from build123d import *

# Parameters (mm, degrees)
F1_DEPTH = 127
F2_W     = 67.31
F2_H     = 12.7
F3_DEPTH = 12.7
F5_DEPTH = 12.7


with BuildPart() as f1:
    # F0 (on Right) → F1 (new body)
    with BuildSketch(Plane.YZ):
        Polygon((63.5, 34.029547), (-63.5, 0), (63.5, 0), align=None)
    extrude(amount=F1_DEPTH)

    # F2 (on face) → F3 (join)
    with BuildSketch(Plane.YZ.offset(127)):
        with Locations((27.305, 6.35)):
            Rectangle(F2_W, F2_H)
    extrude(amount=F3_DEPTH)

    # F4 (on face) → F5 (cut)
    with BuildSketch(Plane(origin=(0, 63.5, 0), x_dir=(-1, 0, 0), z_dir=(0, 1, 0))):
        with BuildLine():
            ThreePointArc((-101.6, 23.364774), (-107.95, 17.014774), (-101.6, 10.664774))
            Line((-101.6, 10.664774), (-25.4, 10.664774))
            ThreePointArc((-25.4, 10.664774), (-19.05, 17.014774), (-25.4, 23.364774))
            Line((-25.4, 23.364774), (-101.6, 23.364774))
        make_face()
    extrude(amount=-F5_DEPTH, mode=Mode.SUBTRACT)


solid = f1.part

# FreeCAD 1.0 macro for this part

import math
import FreeCAD as App
import Part
import Sketcher
from FreeCAD import Vector
Q = App.Units.Quantity

doc = App.newDocument("Part")
params = doc.addObject("Spreadsheet::Sheet", "Params")
for row, (alias, value) in enumerate([
    ("sketch1_width", "5 in"),
    ("pad1_length", "5 in"),
    ("sketch2_height", "0.5 in"),
    ("sketch2_width", "2.65 in"),
    ("pad2_length", "0.5 in"),
    ("sketch3_width", "3 in"),
    ("sketch3_radius", "0.25 in"),
    ("pocket1_length", "0.5 in"),
], start=1):
    params.set(f"A{row}", alias)
    params.set(f"B{row}", "=" + value)
    params.setAlias(f"B{row}", alias)

body = doc.addObject("PartDesign::Body", "Body")

sketch1 = doc.addObject("Sketcher::SketchObject", "Sketch")
body.addObject(sketch1)
sketch1.AttachmentSupport = (doc.YZ_Plane, [""])
sketch1.MapMode = "FlatFace"
sketch1.addGeometry(Part.LineSegment(Vector(64, 34, 0), Vector(-64, 0, 0)), False)
sketch1.addGeometry(Part.LineSegment(Vector(-64, 0, 0), Vector(64, 0, 0)), False)
sketch1.addGeometry(Part.LineSegment(Vector(64, 0, 0), Vector(64, 34, 0)), False)
sketch1.addConstraint(Sketcher.Constraint("Coincident", 0, 2, 1, 1))
sketch1.addConstraint(Sketcher.Constraint("Coincident", 1, 2, 2, 1))
sketch1.addConstraint(Sketcher.Constraint("Coincident", 2, 2, 0, 1))
sketch1.addConstraint(Sketcher.Constraint("Horizontal", 1))
sketch1.addConstraint(Sketcher.Constraint("Vertical", 2))
sketch1.addConstraint(Sketcher.Constraint("Symmetric", 0, 2, 1, 2, -1, 1))
sketch1.addConstraint(Sketcher.Constraint("DistanceX", 1, 1, 1, 2, Q("5 in")))
sketch1.addConstraint(Sketcher.Constraint("Angle", 0, Q("-165 deg")))
sketch1.setExpression("Constraints[6]", "Params.sketch1_width")
pad1 = doc.addObject("PartDesign::Pad", "Pad")
body.addObject(pad1)
pad1.Profile = sketch1
pad1.setExpression("Length", "Params.pad1_length")

sketch2 = doc.addObject("Sketcher::SketchObject", "Sketch001")
body.addObject(sketch2)
sketch2.AttachmentSupport = (doc.YZ_Plane, [""])
sketch2.MapMode = "FlatFace"
sketch2.AttachmentOffset = App.Placement(Vector(0, 0, 5 * 25.4), App.Rotation())
sketch2.addGeometry(Part.LineSegment(Vector(-6, 13, 0), Vector(-6, 0, 0)), False)
sketch2.addGeometry(Part.LineSegment(Vector(-6, 0, 0), Vector(61, 0, 0)), False)
sketch2.addGeometry(Part.LineSegment(Vector(61, 0, 0), Vector(61, 13, 0)), False)
sketch2.addGeometry(Part.LineSegment(Vector(61, 13, 0), Vector(-6, 13, 0)), False)
sketch2.addConstraint(Sketcher.Constraint("Coincident", 0, 2, 1, 1))
sketch2.addConstraint(Sketcher.Constraint("Coincident", 1, 2, 2, 1))
sketch2.addConstraint(Sketcher.Constraint("Coincident", 2, 2, 3, 1))
sketch2.addConstraint(Sketcher.Constraint("Coincident", 3, 2, 0, 1))
sketch2.addConstraint(Sketcher.Constraint("Vertical", 0))
sketch2.addConstraint(Sketcher.Constraint("Horizontal", 1))
sketch2.addConstraint(Sketcher.Constraint("Vertical", 2))
sketch2.addConstraint(Sketcher.Constraint("Horizontal", 3))
sketch2.addConstraint(Sketcher.Constraint("PointOnObject", 0, 2, -1))
sketch2.addConstraint(Sketcher.Constraint("DistanceY", 0, 2, 0, 1, Q("0.5 in")))
sketch2.addConstraint(Sketcher.Constraint("DistanceX", 1, 1, 1, 2, Q("2.65 in")))
sketch2.addConstraint(Sketcher.Constraint("DistanceX", -1, 1, 1, 2, Q("2.4 in")))
sketch2.setExpression("Constraints[9]", "Params.sketch2_height")
sketch2.setExpression("Constraints[10]", "Params.sketch2_width")
pad2 = doc.addObject("PartDesign::Pad", "Pad001")
body.addObject(pad2)
pad2.Profile = sketch2
pad2.setExpression("Length", "Params.pad2_length")

sketch3 = doc.addObject("Sketcher::SketchObject", "Sketch002")
body.addObject(sketch3)
sketch3.AttachmentSupport = (doc.XZ_Plane, [""])
sketch3.MapMode = "FlatFace"
sketch3.AttachmentOffset = App.Placement(Vector(0, 0, -2.5 * 25.4), App.Rotation())
sketch3.addGeometry(Part.ArcOfCircle(Part.Circle(Vector(102, 17, 0), Vector(0, 0, 1), 6), math.radians(-90), math.radians(90)), False)
sketch3.addGeometry(Part.LineSegment(Vector(102, 11, 0), Vector(25, 11, 0)), False)
sketch3.addGeometry(Part.ArcOfCircle(Part.Circle(Vector(25, 17, 0), Vector(0, 0, 1), 6), math.radians(90), math.radians(270)), False)
sketch3.addGeometry(Part.LineSegment(Vector(25, 23, 0), Vector(102, 23, 0)), False)
sketch3.addConstraint(Sketcher.Constraint("Tangent", 0, 1, 1, 1))
sketch3.addConstraint(Sketcher.Constraint("Tangent", 1, 2, 2, 2))
sketch3.addConstraint(Sketcher.Constraint("Tangent", 2, 1, 3, 1))
sketch3.addConstraint(Sketcher.Constraint("Tangent", 3, 2, 0, 2))
sketch3.addConstraint(Sketcher.Constraint("Horizontal", 1))
sketch3.addConstraint(Sketcher.Constraint("Horizontal", 3))
sketch3.addConstraint(Sketcher.Constraint("DistanceX", 1, 2, 1, 1, Q("3 in")))
sketch3.addConstraint(Sketcher.Constraint("Radius", 0, Q("0.25 in")))
sketch3.addConstraint(Sketcher.Constraint("DistanceX", -1, 1, 0, 3, Q("4 in")))
sketch3.addConstraint(Sketcher.Constraint("DistanceY", -1, 1, 0, 3, 17.014774))
sketch3.setExpression("Constraints[6]", "Params.sketch3_width")
sketch3.setExpression("Constraints[7]", "Params.sketch3_radius")
pocket1 = doc.addObject("PartDesign::Pocket", "Pocket")
body.addObject(pocket1)
pocket1.Profile = sketch3
pocket1.setExpression("Length", "Params.pocket1_length")
pocket1.Reversed = True

doc.recompute()
